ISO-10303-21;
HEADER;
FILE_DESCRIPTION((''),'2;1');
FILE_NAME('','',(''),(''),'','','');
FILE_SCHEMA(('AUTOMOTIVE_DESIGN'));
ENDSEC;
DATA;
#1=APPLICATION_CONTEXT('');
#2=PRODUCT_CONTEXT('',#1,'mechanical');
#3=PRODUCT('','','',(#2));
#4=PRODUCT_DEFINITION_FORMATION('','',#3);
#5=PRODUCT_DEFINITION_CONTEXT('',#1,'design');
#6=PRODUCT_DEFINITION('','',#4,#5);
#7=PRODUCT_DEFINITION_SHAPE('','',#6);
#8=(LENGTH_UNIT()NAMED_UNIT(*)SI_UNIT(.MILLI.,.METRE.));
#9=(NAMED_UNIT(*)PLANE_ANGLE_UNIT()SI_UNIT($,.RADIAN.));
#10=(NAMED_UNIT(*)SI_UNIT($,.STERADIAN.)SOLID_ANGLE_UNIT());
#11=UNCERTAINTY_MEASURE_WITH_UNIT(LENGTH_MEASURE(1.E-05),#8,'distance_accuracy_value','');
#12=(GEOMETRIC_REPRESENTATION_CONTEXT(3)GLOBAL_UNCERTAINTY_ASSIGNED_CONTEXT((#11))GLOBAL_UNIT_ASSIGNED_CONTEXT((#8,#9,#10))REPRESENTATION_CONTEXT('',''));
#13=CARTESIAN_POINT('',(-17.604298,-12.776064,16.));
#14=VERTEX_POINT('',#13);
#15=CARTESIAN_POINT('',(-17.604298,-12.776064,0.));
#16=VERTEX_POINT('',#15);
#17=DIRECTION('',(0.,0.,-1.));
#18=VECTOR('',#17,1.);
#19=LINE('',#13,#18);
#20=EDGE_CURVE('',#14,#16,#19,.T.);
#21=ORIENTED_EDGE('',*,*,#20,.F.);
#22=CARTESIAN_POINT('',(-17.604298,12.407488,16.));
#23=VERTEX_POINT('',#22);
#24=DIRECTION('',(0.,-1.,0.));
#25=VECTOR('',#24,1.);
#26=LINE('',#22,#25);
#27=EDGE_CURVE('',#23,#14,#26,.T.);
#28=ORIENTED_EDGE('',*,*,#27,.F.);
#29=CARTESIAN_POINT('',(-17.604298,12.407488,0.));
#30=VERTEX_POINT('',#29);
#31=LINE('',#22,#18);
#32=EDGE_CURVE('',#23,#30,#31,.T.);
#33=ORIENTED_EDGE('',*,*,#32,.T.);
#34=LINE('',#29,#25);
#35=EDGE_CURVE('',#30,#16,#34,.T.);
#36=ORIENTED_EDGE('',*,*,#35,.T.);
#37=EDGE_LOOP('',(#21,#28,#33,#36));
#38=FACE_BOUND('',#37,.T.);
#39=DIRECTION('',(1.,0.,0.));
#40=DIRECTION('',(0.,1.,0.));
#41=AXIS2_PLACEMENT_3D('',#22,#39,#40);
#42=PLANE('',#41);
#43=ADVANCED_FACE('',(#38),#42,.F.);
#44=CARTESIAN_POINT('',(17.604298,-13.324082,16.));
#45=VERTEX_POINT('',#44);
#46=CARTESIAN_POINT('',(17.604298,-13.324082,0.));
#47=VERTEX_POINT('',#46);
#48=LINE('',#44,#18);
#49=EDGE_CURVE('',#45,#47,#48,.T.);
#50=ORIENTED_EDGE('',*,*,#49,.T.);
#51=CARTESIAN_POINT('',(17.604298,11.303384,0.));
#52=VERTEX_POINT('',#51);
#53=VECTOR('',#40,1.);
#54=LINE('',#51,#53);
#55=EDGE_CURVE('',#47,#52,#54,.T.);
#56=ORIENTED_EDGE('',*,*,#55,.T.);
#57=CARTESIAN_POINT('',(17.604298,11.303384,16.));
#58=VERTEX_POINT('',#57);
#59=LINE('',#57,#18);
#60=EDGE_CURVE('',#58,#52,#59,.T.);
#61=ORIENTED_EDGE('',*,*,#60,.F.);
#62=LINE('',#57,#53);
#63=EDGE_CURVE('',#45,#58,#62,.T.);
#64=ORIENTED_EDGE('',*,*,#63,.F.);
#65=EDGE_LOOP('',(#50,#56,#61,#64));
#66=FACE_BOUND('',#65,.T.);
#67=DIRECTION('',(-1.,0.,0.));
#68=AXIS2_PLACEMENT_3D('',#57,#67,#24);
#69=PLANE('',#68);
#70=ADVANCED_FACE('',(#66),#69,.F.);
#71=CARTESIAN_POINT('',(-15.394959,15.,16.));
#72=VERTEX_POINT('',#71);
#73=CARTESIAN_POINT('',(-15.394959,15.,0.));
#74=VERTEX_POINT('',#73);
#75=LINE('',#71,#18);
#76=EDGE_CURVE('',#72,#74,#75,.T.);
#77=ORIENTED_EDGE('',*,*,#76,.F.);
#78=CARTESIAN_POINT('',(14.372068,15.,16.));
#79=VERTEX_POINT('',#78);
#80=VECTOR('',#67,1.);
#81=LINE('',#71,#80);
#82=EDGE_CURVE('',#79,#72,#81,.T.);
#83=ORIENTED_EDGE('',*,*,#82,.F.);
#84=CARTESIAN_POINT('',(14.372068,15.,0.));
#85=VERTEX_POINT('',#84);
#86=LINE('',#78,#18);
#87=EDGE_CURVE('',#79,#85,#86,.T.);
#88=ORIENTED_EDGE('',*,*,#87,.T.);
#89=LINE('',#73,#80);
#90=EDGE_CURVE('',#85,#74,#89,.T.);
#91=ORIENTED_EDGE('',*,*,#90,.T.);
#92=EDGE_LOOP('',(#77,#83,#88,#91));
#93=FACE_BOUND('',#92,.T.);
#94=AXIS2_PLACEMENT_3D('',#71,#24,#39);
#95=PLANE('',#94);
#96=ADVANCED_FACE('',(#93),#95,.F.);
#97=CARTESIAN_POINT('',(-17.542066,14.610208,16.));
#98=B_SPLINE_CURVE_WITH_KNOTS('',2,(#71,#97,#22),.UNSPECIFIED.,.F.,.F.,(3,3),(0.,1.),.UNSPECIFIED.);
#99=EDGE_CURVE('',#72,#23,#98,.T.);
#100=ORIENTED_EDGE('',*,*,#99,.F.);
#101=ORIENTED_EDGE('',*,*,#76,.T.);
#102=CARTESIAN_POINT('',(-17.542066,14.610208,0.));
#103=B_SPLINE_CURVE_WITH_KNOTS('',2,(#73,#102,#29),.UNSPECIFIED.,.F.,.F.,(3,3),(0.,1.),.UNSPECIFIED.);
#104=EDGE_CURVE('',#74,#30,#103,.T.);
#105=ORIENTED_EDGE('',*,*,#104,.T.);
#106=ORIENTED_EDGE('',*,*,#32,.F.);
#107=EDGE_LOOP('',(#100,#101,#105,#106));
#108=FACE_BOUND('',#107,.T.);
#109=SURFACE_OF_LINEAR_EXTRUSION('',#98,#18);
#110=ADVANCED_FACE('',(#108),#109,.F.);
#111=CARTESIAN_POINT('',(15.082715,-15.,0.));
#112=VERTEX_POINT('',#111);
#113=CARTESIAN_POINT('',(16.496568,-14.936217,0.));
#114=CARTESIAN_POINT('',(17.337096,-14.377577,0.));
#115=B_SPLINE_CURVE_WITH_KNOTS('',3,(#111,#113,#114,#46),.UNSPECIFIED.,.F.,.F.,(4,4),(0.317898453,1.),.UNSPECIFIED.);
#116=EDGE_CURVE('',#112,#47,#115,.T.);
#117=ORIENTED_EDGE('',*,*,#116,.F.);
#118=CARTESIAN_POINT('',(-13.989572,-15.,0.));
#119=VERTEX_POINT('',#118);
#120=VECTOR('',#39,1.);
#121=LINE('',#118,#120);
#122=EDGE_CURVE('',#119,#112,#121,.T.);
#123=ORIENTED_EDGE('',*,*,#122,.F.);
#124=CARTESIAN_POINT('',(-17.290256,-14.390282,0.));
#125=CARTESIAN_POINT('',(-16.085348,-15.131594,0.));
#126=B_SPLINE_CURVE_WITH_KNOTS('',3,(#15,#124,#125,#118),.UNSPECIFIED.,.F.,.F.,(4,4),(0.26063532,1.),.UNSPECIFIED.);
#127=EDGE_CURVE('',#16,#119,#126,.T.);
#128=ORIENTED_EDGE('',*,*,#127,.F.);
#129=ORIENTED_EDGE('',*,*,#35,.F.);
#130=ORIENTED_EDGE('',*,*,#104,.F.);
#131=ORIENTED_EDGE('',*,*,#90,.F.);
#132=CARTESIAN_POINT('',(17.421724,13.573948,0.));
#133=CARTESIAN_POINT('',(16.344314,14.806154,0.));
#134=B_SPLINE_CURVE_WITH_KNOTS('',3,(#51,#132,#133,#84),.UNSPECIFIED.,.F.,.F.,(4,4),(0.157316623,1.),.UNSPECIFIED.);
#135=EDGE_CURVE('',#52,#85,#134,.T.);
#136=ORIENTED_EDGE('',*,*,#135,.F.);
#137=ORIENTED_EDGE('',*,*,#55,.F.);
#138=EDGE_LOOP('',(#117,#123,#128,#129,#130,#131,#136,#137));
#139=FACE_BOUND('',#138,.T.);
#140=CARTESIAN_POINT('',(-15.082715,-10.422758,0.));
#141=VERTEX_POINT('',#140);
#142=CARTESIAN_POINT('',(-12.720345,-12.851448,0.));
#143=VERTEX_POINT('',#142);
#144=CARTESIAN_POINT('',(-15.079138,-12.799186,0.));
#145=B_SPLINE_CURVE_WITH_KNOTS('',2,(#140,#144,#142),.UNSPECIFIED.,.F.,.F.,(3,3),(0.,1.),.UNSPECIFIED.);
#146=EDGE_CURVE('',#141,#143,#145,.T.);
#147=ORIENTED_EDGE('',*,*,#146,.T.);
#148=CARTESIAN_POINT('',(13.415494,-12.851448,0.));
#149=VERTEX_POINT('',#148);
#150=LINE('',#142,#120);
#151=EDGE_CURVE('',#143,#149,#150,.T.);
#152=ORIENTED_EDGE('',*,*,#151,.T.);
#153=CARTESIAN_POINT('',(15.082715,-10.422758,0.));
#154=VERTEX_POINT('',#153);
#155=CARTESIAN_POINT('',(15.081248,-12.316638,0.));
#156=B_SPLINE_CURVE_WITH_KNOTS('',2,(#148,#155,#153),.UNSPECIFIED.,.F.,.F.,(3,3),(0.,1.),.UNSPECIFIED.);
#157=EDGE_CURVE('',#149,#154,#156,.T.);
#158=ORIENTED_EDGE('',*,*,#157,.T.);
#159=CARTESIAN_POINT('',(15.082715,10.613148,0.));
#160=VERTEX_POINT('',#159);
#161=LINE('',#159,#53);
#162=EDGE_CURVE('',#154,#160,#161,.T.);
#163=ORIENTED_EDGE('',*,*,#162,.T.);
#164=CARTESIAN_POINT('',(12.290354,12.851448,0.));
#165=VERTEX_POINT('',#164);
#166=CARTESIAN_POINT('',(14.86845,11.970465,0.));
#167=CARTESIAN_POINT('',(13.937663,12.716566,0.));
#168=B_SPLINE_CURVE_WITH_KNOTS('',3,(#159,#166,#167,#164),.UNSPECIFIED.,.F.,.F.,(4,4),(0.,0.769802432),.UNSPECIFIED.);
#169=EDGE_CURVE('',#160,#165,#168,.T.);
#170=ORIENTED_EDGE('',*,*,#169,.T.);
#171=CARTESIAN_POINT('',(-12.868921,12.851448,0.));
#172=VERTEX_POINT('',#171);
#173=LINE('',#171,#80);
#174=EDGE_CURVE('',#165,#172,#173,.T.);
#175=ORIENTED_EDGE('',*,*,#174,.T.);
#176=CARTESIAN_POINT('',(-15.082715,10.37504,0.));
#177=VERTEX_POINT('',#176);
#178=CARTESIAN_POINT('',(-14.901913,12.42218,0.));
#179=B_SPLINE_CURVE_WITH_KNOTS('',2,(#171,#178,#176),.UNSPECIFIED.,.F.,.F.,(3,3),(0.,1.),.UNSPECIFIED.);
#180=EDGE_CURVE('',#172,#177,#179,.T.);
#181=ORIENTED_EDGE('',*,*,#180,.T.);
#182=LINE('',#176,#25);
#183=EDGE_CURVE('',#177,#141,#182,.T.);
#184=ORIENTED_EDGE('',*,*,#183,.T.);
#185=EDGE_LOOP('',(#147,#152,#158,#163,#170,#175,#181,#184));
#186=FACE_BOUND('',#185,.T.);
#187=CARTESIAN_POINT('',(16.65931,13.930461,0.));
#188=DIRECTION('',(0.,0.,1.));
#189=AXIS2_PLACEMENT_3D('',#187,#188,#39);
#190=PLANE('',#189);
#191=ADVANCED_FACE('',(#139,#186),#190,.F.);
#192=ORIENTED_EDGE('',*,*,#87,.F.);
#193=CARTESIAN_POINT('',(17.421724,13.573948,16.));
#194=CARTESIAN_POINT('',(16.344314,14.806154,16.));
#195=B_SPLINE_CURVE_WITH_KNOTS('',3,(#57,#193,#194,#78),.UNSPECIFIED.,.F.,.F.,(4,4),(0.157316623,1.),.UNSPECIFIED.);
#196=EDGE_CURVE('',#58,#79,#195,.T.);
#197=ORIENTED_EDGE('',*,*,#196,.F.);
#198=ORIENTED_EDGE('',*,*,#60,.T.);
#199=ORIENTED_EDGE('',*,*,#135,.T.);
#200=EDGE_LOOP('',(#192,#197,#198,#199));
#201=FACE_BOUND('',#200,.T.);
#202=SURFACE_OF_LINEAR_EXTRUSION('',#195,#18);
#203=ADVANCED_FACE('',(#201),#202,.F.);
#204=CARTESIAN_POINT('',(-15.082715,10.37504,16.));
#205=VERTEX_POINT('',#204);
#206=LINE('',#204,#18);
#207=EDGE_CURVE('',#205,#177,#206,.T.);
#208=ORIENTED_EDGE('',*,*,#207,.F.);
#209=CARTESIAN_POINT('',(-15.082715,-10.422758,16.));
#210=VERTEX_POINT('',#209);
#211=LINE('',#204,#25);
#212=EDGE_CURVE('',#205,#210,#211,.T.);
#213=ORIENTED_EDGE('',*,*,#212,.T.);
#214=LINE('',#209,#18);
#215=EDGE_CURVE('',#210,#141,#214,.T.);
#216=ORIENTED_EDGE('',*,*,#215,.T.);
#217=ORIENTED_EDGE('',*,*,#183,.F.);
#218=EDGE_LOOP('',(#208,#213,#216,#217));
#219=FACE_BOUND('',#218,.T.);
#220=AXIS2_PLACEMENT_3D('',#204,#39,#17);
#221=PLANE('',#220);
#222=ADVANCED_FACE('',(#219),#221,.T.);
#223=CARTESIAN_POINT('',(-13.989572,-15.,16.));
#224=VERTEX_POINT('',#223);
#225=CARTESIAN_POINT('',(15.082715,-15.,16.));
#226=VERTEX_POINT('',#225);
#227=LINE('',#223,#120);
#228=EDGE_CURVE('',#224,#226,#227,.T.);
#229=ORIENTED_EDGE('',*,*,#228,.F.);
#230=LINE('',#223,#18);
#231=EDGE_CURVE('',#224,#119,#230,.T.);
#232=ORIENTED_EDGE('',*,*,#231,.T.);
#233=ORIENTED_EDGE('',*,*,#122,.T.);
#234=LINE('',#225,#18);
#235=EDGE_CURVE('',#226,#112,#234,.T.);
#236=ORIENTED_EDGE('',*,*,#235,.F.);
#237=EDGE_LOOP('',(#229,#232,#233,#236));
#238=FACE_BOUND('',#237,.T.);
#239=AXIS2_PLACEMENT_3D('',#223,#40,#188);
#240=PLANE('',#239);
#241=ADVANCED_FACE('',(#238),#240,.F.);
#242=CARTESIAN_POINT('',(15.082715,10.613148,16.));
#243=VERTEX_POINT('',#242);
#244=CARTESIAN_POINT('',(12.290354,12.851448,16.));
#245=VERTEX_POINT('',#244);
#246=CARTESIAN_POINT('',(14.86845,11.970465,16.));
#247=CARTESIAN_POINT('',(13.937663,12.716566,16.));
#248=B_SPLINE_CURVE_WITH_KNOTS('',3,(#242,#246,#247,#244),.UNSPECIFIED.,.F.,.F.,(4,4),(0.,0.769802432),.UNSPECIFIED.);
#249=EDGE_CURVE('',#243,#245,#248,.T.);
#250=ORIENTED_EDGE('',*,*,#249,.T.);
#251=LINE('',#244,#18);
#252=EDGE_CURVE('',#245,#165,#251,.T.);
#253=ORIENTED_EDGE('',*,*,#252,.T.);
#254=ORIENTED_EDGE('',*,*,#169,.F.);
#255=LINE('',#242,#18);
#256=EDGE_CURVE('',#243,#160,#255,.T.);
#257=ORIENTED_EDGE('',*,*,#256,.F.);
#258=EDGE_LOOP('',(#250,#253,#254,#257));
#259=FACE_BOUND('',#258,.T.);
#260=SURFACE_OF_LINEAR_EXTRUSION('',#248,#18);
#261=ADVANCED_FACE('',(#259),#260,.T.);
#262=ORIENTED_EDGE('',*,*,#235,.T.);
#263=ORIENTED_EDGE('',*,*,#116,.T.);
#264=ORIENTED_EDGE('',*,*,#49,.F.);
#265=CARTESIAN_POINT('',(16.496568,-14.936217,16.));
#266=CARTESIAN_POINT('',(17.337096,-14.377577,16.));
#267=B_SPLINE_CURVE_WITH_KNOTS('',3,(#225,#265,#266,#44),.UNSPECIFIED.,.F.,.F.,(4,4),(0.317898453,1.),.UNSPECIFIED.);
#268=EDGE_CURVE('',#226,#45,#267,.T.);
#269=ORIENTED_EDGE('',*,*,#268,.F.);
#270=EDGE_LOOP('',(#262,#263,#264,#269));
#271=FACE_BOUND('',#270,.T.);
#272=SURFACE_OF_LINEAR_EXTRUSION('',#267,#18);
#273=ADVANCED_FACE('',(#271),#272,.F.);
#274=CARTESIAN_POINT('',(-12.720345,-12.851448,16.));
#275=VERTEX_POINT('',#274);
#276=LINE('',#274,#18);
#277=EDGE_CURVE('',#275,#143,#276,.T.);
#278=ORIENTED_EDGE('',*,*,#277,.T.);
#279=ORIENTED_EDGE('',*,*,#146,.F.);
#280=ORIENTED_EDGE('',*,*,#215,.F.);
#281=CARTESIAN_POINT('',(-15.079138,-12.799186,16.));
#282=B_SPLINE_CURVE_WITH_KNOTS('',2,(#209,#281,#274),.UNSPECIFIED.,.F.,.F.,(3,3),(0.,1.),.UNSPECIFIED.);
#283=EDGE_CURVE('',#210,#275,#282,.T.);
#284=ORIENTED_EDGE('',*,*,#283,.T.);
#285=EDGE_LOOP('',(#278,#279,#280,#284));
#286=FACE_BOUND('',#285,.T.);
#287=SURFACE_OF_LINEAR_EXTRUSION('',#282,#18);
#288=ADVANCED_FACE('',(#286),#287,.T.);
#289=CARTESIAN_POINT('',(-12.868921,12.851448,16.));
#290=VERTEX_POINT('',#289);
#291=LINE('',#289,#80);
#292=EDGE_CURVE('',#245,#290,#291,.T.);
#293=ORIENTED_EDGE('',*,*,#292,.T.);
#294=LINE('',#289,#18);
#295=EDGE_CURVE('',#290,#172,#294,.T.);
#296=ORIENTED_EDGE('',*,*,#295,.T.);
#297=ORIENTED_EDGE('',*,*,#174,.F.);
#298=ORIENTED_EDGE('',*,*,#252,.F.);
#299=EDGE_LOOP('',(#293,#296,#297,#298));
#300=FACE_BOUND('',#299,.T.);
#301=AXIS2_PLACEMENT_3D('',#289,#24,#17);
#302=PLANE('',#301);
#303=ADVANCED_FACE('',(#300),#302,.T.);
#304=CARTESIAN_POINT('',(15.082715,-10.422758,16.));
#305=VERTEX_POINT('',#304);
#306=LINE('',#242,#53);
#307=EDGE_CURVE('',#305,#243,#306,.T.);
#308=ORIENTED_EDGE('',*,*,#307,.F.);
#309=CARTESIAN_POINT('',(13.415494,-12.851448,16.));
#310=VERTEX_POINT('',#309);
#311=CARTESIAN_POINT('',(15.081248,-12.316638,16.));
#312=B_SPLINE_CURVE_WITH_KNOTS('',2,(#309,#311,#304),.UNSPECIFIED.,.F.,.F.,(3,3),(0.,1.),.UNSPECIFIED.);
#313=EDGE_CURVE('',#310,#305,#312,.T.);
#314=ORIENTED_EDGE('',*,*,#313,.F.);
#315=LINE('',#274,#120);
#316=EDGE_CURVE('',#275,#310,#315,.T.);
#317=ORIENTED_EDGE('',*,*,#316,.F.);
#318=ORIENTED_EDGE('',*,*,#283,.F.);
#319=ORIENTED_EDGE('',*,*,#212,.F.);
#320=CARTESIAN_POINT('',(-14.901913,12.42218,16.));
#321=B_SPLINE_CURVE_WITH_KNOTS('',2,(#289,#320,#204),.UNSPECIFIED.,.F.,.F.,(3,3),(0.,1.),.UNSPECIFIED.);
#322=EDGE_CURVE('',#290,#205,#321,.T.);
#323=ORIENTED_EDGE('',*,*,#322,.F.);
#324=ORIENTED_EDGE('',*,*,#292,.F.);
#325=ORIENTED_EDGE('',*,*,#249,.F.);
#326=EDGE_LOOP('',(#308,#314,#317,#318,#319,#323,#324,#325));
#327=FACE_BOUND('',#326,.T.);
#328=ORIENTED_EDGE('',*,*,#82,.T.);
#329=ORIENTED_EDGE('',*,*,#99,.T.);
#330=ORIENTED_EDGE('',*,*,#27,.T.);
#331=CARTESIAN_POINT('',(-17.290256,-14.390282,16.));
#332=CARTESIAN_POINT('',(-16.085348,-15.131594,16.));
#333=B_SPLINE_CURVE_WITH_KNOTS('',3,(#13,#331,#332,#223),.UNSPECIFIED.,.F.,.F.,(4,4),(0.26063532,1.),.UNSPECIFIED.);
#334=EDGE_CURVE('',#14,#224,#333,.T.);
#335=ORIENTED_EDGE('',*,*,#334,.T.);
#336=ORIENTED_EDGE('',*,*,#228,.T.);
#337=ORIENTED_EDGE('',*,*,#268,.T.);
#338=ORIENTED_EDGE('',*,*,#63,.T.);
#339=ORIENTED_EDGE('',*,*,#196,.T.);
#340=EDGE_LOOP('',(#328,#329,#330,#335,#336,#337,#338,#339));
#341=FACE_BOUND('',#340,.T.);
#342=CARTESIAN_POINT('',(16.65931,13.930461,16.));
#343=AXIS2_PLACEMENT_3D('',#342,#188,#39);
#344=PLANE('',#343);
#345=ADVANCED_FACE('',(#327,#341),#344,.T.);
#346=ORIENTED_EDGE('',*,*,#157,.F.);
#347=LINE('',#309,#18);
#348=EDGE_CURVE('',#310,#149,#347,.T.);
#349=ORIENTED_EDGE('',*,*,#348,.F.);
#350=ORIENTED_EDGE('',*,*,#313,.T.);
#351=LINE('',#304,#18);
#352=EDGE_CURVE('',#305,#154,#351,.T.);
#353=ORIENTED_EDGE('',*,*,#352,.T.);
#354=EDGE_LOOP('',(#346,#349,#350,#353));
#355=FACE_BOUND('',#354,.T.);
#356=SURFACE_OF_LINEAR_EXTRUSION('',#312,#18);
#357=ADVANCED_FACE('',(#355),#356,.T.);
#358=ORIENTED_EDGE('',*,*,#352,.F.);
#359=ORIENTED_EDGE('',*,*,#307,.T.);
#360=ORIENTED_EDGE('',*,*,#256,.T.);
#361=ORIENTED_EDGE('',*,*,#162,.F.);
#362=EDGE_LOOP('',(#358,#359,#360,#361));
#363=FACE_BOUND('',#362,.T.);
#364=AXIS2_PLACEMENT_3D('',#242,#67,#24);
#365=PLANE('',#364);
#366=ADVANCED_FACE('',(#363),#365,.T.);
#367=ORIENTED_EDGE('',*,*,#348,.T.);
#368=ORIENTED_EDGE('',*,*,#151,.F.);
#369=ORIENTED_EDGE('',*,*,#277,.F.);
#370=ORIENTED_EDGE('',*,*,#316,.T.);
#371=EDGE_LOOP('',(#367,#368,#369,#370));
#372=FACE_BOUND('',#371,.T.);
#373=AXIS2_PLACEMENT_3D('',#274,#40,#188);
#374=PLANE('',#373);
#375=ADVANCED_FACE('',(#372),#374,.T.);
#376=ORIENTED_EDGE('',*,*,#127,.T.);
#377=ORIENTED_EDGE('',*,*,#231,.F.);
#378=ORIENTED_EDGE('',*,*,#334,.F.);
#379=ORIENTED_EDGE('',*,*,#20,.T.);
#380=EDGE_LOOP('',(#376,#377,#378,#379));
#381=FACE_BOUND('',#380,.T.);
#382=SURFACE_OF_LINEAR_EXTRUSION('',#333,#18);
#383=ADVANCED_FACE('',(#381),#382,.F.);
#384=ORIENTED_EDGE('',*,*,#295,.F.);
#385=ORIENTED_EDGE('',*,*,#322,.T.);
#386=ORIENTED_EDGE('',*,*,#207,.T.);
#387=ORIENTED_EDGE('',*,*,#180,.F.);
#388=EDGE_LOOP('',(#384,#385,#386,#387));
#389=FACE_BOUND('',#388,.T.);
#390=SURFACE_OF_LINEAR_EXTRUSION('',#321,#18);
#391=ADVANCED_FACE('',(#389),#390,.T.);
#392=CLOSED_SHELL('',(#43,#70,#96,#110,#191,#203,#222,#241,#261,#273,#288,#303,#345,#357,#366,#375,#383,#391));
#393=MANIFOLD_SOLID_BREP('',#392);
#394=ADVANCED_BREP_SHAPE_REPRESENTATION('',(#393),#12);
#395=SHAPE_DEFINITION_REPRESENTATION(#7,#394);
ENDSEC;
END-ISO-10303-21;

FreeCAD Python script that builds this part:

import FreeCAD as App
import Part
import Sketcher
from FreeCAD import Vector

doc = App.newDocument("Part")
body = doc.addObject("PartDesign::Body", "Body")

# Sketch on XY plane
sketch1 = body.newObject("Sketcher::SketchObject", "Sketch")
sketch1.AttachmentSupport = (doc.getObject("XY_Plane"), [""])
sketch1.MapMode = "FlatFace"
sketch1.addGeometry(Part.LineSegment(Vector(14.372068, 15, 0), Vector(-15.394959, 15, 0)), False)
sketch1.addGeometry(Part.BSplineCurve([Vector(-17.604298, 12.407488, 0), Vector(-17.542066, 14.610208, 0), Vector(-15.394959, 15, 0)], [3, 3], [0, 1], False, 2, [1, 1, 1], False), False)
sketch1.addGeometry(Part.LineSegment(Vector(-17.604298, 12.407488, 0), Vector(-17.604298, -12.776064, 0)), False)
sketch1.addGeometry(Part.BSplineCurve([Vector(-17.604298, -12.776064, 0), Vector(-17.290256, -14.390282, 0), Vector(-16.085348, -15.131594, 0), Vector(-13.989572, -15, 0)], [4, 4], [0.26063532, 1], False, 3, [1, 1, 1, 1], False), False)
sketch1.addGeometry(Part.LineSegment(Vector(-13.989572, -15, 0), Vector(15.082715, -15, 0)), False)
sketch1.addGeometry(Part.BSplineCurve([Vector(17.604298, -13.324082, 0), Vector(17.337096, -14.377577, 0), Vector(16.496568, -14.936217, 0), Vector(15.082715, -15, 0)], [4, 4], [0.317898453, 1], False, 3, [1, 1, 1, 1], False), False)
sketch1.addGeometry(Part.LineSegment(Vector(17.604298, -13.324082, 0), Vector(17.604298, 11.303384, 0)), False)
sketch1.addGeometry(Part.BSplineCurve([Vector(14.372068, 15, 0), Vector(16.344314, 14.806154, 0), Vector(17.421724, 13.573948, 0), Vector(17.604298, 11.303384, 0)], [4, 4], [0.157316623, 1], False, 3, [1, 1, 1, 1], False), False)
sketch1.addGeometry(Part.LineSegment(Vector(-12.868921, 12.851448, 0), Vector(12.290354, 12.851448, 0)), False)
sketch1.addGeometry(Part.BSplineCurve([Vector(12.290354, 12.851448, 0), Vector(13.937663, 12.716566, 0), Vector(14.86845, 11.970465, 0), Vector(15.082715, 10.613148, 0)], [4, 4], [0, 0.769802432], False, 3, [1, 1, 1, 1], False), False)
sketch1.addGeometry(Part.LineSegment(Vector(15.082715, 10.613148, 0), Vector(15.082715, -10.422758, 0)), False)
sketch1.addGeometry(Part.BSplineCurve([Vector(15.082715, -10.422758, 0), Vector(15.081248, -12.316638, 0), Vector(13.415494, -12.851448, 0)], [3, 3], [0, 1], False, 2, [1, 1, 1], False), False)
sketch1.addGeometry(Part.LineSegment(Vector(13.415494, -12.851448, 0), Vector(-12.720345, -12.851448, 0)), False)
sketch1.addGeometry(Part.BSplineCurve([Vector(-15.082715, -10.422758, 0), Vector(-15.079138, -12.799186, 0), Vector(-12.720345, -12.851448, 0)], [3, 3], [0, 1], False, 2, [1, 1, 1], False), False)
sketch1.addGeometry(Part.LineSegment(Vector(-15.082715, -10.422758, 0), Vector(-15.082715, 10.37504, 0)), False)
sketch1.addGeometry(Part.BSplineCurve([Vector(-15.082715, 10.37504, 0), Vector(-14.901913, 12.42218, 0), Vector(-12.868921, 12.851448, 0)], [3, 3], [0, 1], False, 2, [1, 1, 1], False), False)
sketch1.addConstraint(Sketcher.Constraint("Block", 1))
sketch1.addConstraint(Sketcher.Constraint("Block", 3))
sketch1.addConstraint(Sketcher.Constraint("Block", 5))
sketch1.addConstraint(Sketcher.Constraint("Block", 7))
sketch1.addConstraint(Sketcher.Constraint("Block", 9))
sketch1.addConstraint(Sketcher.Constraint("Block", 11))
sketch1.addConstraint(Sketcher.Constraint("Block", 13))
sketch1.addConstraint(Sketcher.Constraint("Block", 15))
sketch1.addConstraint(Sketcher.Constraint("Coincident", 0, 2, 1, 2))
sketch1.addConstraint(Sketcher.Constraint("Coincident", 1, 1, 2, 1))
sketch1.addConstraint(Sketcher.Constraint("Coincident", 2, 2, 3, 1))
sketch1.addConstraint(Sketcher.Constraint("Coincident", 3, 2, 4, 1))
sketch1.addConstraint(Sketcher.Constraint("Coincident", 4, 2, 5, 2))
sketch1.addConstraint(Sketcher.Constraint("Coincident", 5, 1, 6, 1))
sketch1.addConstraint(Sketcher.Constraint("Coincident", 6, 2, 7, 2))
sketch1.addConstraint(Sketcher.Constraint("Coincident", 7, 1, 0, 1))
sketch1.addConstraint(Sketcher.Constraint("Coincident", 8, 2, 9, 1))
sketch1.addConstraint(Sketcher.Constraint("Coincident", 9, 2, 10, 1))
sketch1.addConstraint(Sketcher.Constraint("Coincident", 10, 2, 11, 1))
sketch1.addConstraint(Sketcher.Constraint("Coincident", 11, 2, 12, 1))
sketch1.addConstraint(Sketcher.Constraint("Coincident", 12, 2, 13, 2))
sketch1.addConstraint(Sketcher.Constraint("Coincident", 13, 1, 14, 1))
sketch1.addConstraint(Sketcher.Constraint("Coincident", 14, 2, 15, 1))
sketch1.addConstraint(Sketcher.Constraint("Coincident", 15, 2, 8, 1))
pad1 = body.newObject("PartDesign::Pad", "Pad")
pad1.Profile = sketch1
pad1.Length = 16

doc.recompute()
